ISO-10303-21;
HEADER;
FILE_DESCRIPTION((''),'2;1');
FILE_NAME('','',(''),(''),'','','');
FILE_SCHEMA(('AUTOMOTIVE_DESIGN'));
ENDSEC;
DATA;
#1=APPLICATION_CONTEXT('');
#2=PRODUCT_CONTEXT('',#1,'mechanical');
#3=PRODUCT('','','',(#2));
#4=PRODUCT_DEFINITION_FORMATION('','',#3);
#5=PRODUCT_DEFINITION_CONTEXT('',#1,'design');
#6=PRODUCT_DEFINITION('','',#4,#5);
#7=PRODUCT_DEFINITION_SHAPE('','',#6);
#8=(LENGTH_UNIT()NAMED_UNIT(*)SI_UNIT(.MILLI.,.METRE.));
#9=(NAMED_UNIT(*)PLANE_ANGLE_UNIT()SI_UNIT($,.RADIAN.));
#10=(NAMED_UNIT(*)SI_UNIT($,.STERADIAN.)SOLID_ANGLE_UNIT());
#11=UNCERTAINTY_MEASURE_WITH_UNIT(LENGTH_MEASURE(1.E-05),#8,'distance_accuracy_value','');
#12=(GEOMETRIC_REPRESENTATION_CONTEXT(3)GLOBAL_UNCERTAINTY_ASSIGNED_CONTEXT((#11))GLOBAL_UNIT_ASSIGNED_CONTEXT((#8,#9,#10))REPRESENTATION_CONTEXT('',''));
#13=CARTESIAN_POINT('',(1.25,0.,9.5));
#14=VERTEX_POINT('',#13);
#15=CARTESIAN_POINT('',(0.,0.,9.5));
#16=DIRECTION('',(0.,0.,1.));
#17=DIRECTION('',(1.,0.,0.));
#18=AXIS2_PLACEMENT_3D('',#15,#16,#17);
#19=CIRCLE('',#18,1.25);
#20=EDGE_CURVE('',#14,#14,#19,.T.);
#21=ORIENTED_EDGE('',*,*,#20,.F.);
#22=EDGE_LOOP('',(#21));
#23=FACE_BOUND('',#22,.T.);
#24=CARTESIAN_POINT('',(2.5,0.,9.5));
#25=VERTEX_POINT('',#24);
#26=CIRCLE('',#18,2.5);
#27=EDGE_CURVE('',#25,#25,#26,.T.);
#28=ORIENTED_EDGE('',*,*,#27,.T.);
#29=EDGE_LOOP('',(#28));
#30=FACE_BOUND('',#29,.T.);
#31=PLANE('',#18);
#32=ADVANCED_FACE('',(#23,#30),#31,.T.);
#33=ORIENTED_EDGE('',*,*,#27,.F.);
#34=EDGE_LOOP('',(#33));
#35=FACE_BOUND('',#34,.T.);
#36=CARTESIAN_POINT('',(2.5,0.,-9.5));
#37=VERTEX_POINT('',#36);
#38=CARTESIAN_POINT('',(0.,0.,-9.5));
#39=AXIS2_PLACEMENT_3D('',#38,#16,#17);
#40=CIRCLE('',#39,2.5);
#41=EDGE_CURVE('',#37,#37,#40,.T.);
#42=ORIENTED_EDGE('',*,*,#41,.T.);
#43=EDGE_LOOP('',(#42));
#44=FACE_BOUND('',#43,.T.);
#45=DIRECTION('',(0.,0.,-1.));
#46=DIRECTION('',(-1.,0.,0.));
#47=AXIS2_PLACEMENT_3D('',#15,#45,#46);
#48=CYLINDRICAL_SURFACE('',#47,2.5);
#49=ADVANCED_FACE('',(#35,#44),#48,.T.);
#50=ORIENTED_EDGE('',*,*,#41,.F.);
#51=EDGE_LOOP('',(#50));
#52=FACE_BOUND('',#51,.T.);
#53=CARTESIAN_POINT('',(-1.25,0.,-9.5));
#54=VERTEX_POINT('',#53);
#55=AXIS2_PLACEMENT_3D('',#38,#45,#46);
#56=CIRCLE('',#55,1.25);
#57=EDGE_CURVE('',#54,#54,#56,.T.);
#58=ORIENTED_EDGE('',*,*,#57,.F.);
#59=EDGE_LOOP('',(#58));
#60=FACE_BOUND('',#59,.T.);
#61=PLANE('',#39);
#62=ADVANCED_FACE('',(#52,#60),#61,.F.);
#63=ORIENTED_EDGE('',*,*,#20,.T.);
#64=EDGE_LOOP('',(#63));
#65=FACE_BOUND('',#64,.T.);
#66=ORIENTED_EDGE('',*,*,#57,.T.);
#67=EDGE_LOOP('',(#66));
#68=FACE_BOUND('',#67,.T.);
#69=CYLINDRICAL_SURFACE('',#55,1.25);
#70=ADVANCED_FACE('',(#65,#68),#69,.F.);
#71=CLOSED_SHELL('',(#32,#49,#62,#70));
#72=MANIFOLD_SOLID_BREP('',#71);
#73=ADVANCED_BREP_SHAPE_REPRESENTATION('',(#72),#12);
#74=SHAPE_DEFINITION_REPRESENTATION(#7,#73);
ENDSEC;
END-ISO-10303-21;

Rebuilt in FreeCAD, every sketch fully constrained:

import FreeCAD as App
import Part
import Sketcher

V = App.Vector

doc = App.newDocument("Part")
params = doc.addObject("Spreadsheet::Sheet", "Params")
for row, (alias, value) in enumerate([
    ("sketch1_diameter", "5 mm"),
    ("pad1_length", "19 mm"),
    ("sketch2_diameter", "2.5 mm"),
    ("hole_diameter", "2.5 mm"),
    ("hole_depth", "8.5 mm"),
    ("sketch3_diameter", "2.5 mm"),
    ("hole2_diameter", "2.5 mm"),
    ("hole2_depth", "8.5 mm"),
    ("sketch4_diameter", "2.5 mm"),
    ("pocket1_length", "19 mm"),
], start=1):
    params.set(f"A{row}", alias)
    params.set(f"B{row}", "=" + value)
    params.setAlias(f"B{row}", alias)

body = doc.addObject("PartDesign::Body", "Body")

# Sketch on XY plane
sketch1 = doc.addObject("Sketcher::SketchObject", "Sketch")
body.addObject(sketch1)
sketch1.AttachmentSupport = (doc.XY_Plane, [""])
sketch1.MapMode = "FlatFace"
sketch1.addGeometry(Part.Circle(V(0, 0, 0), V(0, 0, 1), 2.5), False)
sketch1.addConstraint([
    Sketcher.Constraint("Coincident", 0, 3, -1, 1),
    Sketcher.Constraint("Diameter", 0, 5.0),
])
sketch1.setExpression("Constraints[1]", "Params.sketch1_diameter")
pad1 = doc.addObject("PartDesign::Pad", "Pad")
body.addObject(pad1)
pad1.Profile = sketch1
pad1.setExpression("Length", "Params.pad1_length")
pad1.Midplane = True

# Sketch on XY plane
sketch2 = doc.addObject("Sketcher::SketchObject", "Sketch001")
body.addObject(sketch2)
sketch2.AttachmentSupport = (doc.XY_Plane, [""])
sketch2.MapMode = "FlatFace"
sketch2.AttachmentOffset = App.Placement(V(0, 0, 9.5), App.Rotation())
sketch2.addGeometry(Part.Circle(V(0, 0, 0), V(0, 0, 1), 1.25), False)
sketch2.addConstraint([
    Sketcher.Constraint("Coincident", 0, 3, -1, 1),
    Sketcher.Constraint("Diameter", 0, 2.5),
])
sketch2.setExpression("Constraints[1]", "Params.sketch2_diameter")
doc.recompute()
hole = doc.addObject("PartDesign::Hole", "Hole")
body.addObject(hole)
hole.Profile = sketch2
hole.ThreadType = "None"
hole.setExpression("Diameter", "Params.hole_diameter")
hole.DepthType = "Dimension"
hole.setExpression("Depth", "Params.hole_depth")
hole.DrillPoint = "Angled"
hole.DrillPointAngle = 118

# Sketch on XY plane
sketch3 = doc.addObject("Sketcher::SketchObject", "Sketch002")
body.addObject(sketch3)
sketch3.AttachmentSupport = (doc.XY_Plane, [""])
sketch3.MapMode = "FlatFace"
sketch3.AttachmentOffset = App.Placement(V(0, 0, -9.5), App.Rotation())
sketch3.addGeometry(Part.Circle(V(0, 0, 0), V(0, 0, 1), 1.25), False)
sketch3.addConstraint([
    Sketcher.Constraint("Coincident", 0, 3, -1, 1),
    Sketcher.Constraint("Diameter", 0, 2.5),
])
sketch3.setExpression("Constraints[1]", "Params.sketch3_diameter")
doc.recompute()
hole2 = doc.addObject("PartDesign::Hole", "Hole001")
body.addObject(hole2)
hole2.Profile = sketch3
hole2.ThreadType = "None"
hole2.setExpression("Diameter", "Params.hole2_diameter")
hole2.DepthType = "Dimension"
hole2.setExpression("Depth", "Params.hole2_depth")
hole2.DrillPoint = "Angled"
hole2.DrillPointAngle = 118
hole2.Reversed = True

# Sketch on XY plane
sketch4 = doc.addObject("Sketcher::SketchObject", "Sketch003")
body.addObject(sketch4)
sketch4.AttachmentSupport = (doc.XY_Plane, [""])
sketch4.MapMode = "FlatFace"
sketch4.AttachmentOffset = App.Placement(V(0, 0, -9.5), App.Rotation())
sketch4.addGeometry(Part.Circle(V(0, 0, 0), V(0, 0, 1), 1.25), False)
sketch4.addConstraint([
    Sketcher.Constraint("Coincident", 0, 3, -1, 1),
    Sketcher.Constraint("Diameter", 0, 2.5),
])
sketch4.setExpression("Constraints[1]", "Params.sketch4_diameter")
pocket1 = doc.addObject("PartDesign::Pocket", "Pocket")
body.addObject(pocket1)
pocket1.Profile = sketch4
pocket1.setExpression("Length", "Params.pocket1_length")
pocket1.Reversed = True

doc.recompute()
